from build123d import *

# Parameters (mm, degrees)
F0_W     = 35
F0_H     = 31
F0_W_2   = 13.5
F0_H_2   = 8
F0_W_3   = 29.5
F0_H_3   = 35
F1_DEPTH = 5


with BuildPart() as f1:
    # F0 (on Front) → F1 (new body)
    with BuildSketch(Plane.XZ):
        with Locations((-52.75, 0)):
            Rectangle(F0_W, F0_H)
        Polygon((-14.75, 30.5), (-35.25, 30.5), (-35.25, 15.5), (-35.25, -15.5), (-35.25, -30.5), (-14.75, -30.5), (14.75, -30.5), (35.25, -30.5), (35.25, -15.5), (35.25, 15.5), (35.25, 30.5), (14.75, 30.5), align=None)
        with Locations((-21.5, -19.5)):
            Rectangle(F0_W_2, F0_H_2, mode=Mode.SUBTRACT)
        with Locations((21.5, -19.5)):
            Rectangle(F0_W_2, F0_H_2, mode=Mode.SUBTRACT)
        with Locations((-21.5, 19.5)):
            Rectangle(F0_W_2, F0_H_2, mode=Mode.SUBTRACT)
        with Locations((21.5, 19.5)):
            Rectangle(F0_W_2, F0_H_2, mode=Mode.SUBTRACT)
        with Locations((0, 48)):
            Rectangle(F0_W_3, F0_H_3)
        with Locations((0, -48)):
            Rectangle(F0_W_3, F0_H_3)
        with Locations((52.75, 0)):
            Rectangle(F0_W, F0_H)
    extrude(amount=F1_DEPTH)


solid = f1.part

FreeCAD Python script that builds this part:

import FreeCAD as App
import Part
import Sketcher

V = App.Vector
Q = App.Units.Quantity

doc = App.newDocument("Part")
body = doc.addObject("PartDesign::Body", "Body")

# Sketch on XZ plane
sketch1 = body.newObject("Sketcher::SketchObject", "Sketch")
sketch1.AttachmentSupport = (doc.getObject("XZ_Plane"), [""])
sketch1.MapMode = "FlatFace"
sketch1.addGeometry([
    Part.LineSegment(V(-70, 16, 0), V(-70, -16, 0)),  # 0
    Part.LineSegment(V(-70, -16, 0), V(-35, -16, 0)),  # 1
    Part.LineSegment(V(-35, -16, 0), V(-35, -30, 0)),  # 2
    Part.LineSegment(V(-35, -30, 0), V(-15, -30, 0)),  # 3
    Part.LineSegment(V(-15, -30, 0), V(-15, -66, 0)),  # 4
    Part.LineSegment(V(-15, -66, 0), V(15, -66, 0)),  # 5
    Part.LineSegment(V(15, -66, 0), V(15, -30, 0)),  # 6
    Part.LineSegment(V(15, -30, 0), V(35, -30, 0)),  # 7
    Part.LineSegment(V(35, -30, 0), V(35, -16, 0)),  # 8
    Part.LineSegment(V(35, -16, 0), V(70, -16, 0)),  # 9
    Part.LineSegment(V(70, -16, 0), V(70, 16, 0)),  # 10
    Part.LineSegment(V(70, 16, 0), V(35, 16, 0)),  # 11
    Part.LineSegment(V(35, 16, 0), V(35, 30, 0)),  # 12
    Part.LineSegment(V(35, 30, 0), V(15, 30, 0)),  # 13
    Part.LineSegment(V(15, 30, 0), V(15, 66, 0)),  # 14
    Part.LineSegment(V(15, 66, 0), V(-15, 66, 0)),  # 15
    Part.LineSegment(V(-15, 66, 0), V(-15, 30, 0)),  # 16
    Part.LineSegment(V(-15, 30, 0), V(-35, 30, 0)),  # 17
    Part.LineSegment(V(-35, 30, 0), V(-35, 16, 0)),  # 18
    Part.LineSegment(V(-35, 16, 0), V(-70, 16, 0)),  # 19
    Part.LineSegment(V(-15, -24, 0), V(-28, -24, 0)),  # 20
    Part.LineSegment(V(-28, -24, 0), V(-28, -16, 0)),  # 21
    Part.LineSegment(V(-28, -16, 0), V(-15, -16, 0)),  # 22
    Part.LineSegment(V(-15, -16, 0), V(-15, -24, 0)),  # 23
    Part.LineSegment(V(28, -24, 0), V(15, -24, 0)),  # 24
    Part.LineSegment(V(15, -24, 0), V(15, -16, 0)),  # 25
    Part.LineSegment(V(15, -16, 0), V(28, -16, 0)),  # 26
    Part.LineSegment(V(28, -16, 0), V(28, -24, 0)),  # 27
    Part.LineSegment(V(-15, 16, 0), V(-28, 16, 0)),  # 28
    Part.LineSegment(V(-28, 16, 0), V(-28, 24, 0)),  # 29
    Part.LineSegment(V(-28, 24, 0), V(-15, 24, 0)),  # 30
    Part.LineSegment(V(-15, 24, 0), V(-15, 16, 0)),  # 31
    Part.LineSegment(V(28, 16, 0), V(15, 16, 0)),  # 32
    Part.LineSegment(V(15, 16, 0), V(15, 24, 0)),  # 33
    Part.LineSegment(V(15, 24, 0), V(28, 24, 0)),  # 34
    Part.LineSegment(V(28, 24, 0), V(28, 16, 0)),  # 35
], False)
sketch1.addConstraint([
    Sketcher.Constraint("Coincident", 0, 2, 1, 1),
    Sketcher.Constraint("Coincident", 1, 2, 2, 1),
    Sketcher.Constraint("Coincident", 2, 2, 3, 1),
    Sketcher.Constraint("Coincident", 3, 2, 4, 1),
    Sketcher.Constraint("Coincident", 4, 2, 5, 1),
    Sketcher.Constraint("Coincident", 5, 2, 6, 1),
    Sketcher.Constraint("Coincident", 6, 2, 7, 1),
    Sketcher.Constraint("Coincident", 7, 2, 8, 1),
    Sketcher.Constraint("Coincident", 8, 2, 9, 1),
    Sketcher.Constraint("Coincident", 9, 2, 10, 1),
    Sketcher.Constraint("Coincident", 10, 2, 11, 1),
    Sketcher.Constraint("Coincident", 11, 2, 12, 1),
    Sketcher.Constraint("Coincident", 12, 2, 13, 1),
    Sketcher.Constraint("Coincident", 13, 2, 14, 1),
    Sketcher.Constraint("Coincident", 14, 2, 15, 1),
    Sketcher.Constraint("Coincident", 15, 2, 16, 1),
    Sketcher.Constraint("Coincident", 16, 2, 17, 1),
    Sketcher.Constraint("Coincident", 17, 2, 18, 1),
    Sketcher.Constraint("Coincident", 18, 2, 19, 1),
    Sketcher.Constraint("Coincident", 19, 2, 0, 1),
    Sketcher.Constraint("Coincident", 20, 2, 21, 1),
    Sketcher.Constraint("Coincident", 21, 2, 22, 1),
    Sketcher.Constraint("Coincident", 22, 2, 23, 1),
    Sketcher.Constraint("Coincident", 23, 2, 20, 1),
    Sketcher.Constraint("Coincident", 24, 2, 25, 1),
    Sketcher.Constraint("Coincident", 25, 2, 26, 1),
    Sketcher.Constraint("Coincident", 26, 2, 27, 1),
    Sketcher.Constraint("Coincident", 27, 2, 24, 1),
    Sketcher.Constraint("Coincident", 28, 2, 29, 1),
    Sketcher.Constraint("Coincident", 29, 2, 30, 1),
    Sketcher.Constraint("Coincident", 30, 2, 31, 1),
    Sketcher.Constraint("Coincident", 31, 2, 28, 1),
    Sketcher.Constraint("Coincident", 32, 2, 33, 1),
    Sketcher.Constraint("Coincident", 33, 2, 34, 1),
    Sketcher.Constraint("Coincident", 34, 2, 35, 1),
    Sketcher.Constraint("Coincident", 35, 2, 32, 1),
    Sketcher.Constraint("Vertical", 0),
    Sketcher.Constraint("Horizontal", 1),
    Sketcher.Constraint("Vertical", 2),
    Sketcher.Constraint("Horizontal", 3),
    Sketcher.Constraint("Vertical", 4),
    Sketcher.Constraint("Horizontal", 5),
    Sketcher.Constraint("Vertical", 6),
    Sketcher.Constraint("Horizontal", 7),
    Sketcher.Constraint("Vertical", 8),
    Sketcher.Constraint("Horizontal", 9),
    Sketcher.Constraint("Vertical", 10),
    Sketcher.Constraint("Horizontal", 11),
    Sketcher.Constraint("Vertical", 12),
    Sketcher.Constraint("Horizontal", 13),
    Sketcher.Constraint("Vertical", 14),
    Sketcher.Constraint("Horizontal", 15),
    Sketcher.Constraint("Vertical", 16),
    Sketcher.Constraint("Horizontal", 17),
    Sketcher.Constraint("Vertical", 18),
    Sketcher.Constraint("Horizontal", 19),
    Sketcher.Constraint("Horizontal", 20),
    Sketcher.Constraint("Vertical", 21),
    Sketcher.Constraint("Horizontal", 22),
    Sketcher.Constraint("Vertical", 23),
    Sketcher.Constraint("Horizontal", 24),
    Sketcher.Constraint("Vertical", 25),
    Sketcher.Constraint("Horizontal", 26),
    Sketcher.Constraint("Vertical", 27),
    Sketcher.Constraint("Horizontal", 28),
    Sketcher.Constraint("Vertical", 29),
    Sketcher.Constraint("Horizontal", 30),
    Sketcher.Constraint("Vertical", 31),
    Sketcher.Constraint("Horizontal", 32),
    Sketcher.Constraint("Vertical", 33),
    Sketcher.Constraint("Horizontal", 34),
    Sketcher.Constraint("Vertical", 35),
    Sketcher.Constraint("Symmetric", 0, 2, 10, 2, -1, 1),
    Sketcher.Constraint("Symmetric", 2, 2, 12, 2, -1, 1),
    Sketcher.Constraint("Symmetric", 4, 2, 14, 2, -1, 1),
    Sketcher.Constraint("Symmetric", 6, 2, 16, 2, -1, 1),
    Sketcher.Constraint("Symmetric", 8, 2, 18, 2, -1, 1),
    Sketcher.Constraint("Symmetric", 26, 2, 28, 2, -1, 1),
    Sketcher.Constraint("Symmetric", 24, 2, 30, 2, -1, 1),
    Sketcher.Constraint("Symmetric", 22, 2, 32, 2, -1, 1),
    Sketcher.Constraint("Symmetric", 20, 2, 34, 2, -1, 1),
    Sketcher.Constraint("Symmetric", 3, 2, 6, 2, -2),
    Sketcher.Constraint("Symmetric", 1, 2, 8, 2, -2),
    Sketcher.Constraint("Symmetric", 23, 2, 24, 2, -2),
    Sketcher.Constraint("Symmetric", 21, 2, 26, 2, -2),
    Sketcher.Constraint("Horizontal", 9, 2, 21, 2),
    Sketcher.Constraint("Vertical", 16, 2, 22, 2),
    Sketcher.Constraint("Equal", 19, 4),
    Sketcher.Constraint("DistanceX", 1, 1, 1, 2, Q("35 mm")),
    Sketcher.Constraint("DistanceY", 0, 2, 0, 1, Q("31 mm")),
    Sketcher.Constraint("DistanceY", 2, 2, 2, 1, Q("15 mm")),
    Sketcher.Constraint("DistanceY", 21, 1, 21, 2, Q("8 mm")),
    Sketcher.Constraint("DistanceX", 3, 1, 3, 2, Q("20.5 mm")),
    Sketcher.Constraint("DistanceX", 5, 1, 5, 2, Q("29.5 mm")),
    Sketcher.Constraint("DistanceX", 20, 2, 20, 1, Q("13.5 mm")),
])
pad1 = body.newObject("PartDesign::Pad", "Pad")
pad1.Profile = sketch1
pad1.Length = 5

doc.recompute()
